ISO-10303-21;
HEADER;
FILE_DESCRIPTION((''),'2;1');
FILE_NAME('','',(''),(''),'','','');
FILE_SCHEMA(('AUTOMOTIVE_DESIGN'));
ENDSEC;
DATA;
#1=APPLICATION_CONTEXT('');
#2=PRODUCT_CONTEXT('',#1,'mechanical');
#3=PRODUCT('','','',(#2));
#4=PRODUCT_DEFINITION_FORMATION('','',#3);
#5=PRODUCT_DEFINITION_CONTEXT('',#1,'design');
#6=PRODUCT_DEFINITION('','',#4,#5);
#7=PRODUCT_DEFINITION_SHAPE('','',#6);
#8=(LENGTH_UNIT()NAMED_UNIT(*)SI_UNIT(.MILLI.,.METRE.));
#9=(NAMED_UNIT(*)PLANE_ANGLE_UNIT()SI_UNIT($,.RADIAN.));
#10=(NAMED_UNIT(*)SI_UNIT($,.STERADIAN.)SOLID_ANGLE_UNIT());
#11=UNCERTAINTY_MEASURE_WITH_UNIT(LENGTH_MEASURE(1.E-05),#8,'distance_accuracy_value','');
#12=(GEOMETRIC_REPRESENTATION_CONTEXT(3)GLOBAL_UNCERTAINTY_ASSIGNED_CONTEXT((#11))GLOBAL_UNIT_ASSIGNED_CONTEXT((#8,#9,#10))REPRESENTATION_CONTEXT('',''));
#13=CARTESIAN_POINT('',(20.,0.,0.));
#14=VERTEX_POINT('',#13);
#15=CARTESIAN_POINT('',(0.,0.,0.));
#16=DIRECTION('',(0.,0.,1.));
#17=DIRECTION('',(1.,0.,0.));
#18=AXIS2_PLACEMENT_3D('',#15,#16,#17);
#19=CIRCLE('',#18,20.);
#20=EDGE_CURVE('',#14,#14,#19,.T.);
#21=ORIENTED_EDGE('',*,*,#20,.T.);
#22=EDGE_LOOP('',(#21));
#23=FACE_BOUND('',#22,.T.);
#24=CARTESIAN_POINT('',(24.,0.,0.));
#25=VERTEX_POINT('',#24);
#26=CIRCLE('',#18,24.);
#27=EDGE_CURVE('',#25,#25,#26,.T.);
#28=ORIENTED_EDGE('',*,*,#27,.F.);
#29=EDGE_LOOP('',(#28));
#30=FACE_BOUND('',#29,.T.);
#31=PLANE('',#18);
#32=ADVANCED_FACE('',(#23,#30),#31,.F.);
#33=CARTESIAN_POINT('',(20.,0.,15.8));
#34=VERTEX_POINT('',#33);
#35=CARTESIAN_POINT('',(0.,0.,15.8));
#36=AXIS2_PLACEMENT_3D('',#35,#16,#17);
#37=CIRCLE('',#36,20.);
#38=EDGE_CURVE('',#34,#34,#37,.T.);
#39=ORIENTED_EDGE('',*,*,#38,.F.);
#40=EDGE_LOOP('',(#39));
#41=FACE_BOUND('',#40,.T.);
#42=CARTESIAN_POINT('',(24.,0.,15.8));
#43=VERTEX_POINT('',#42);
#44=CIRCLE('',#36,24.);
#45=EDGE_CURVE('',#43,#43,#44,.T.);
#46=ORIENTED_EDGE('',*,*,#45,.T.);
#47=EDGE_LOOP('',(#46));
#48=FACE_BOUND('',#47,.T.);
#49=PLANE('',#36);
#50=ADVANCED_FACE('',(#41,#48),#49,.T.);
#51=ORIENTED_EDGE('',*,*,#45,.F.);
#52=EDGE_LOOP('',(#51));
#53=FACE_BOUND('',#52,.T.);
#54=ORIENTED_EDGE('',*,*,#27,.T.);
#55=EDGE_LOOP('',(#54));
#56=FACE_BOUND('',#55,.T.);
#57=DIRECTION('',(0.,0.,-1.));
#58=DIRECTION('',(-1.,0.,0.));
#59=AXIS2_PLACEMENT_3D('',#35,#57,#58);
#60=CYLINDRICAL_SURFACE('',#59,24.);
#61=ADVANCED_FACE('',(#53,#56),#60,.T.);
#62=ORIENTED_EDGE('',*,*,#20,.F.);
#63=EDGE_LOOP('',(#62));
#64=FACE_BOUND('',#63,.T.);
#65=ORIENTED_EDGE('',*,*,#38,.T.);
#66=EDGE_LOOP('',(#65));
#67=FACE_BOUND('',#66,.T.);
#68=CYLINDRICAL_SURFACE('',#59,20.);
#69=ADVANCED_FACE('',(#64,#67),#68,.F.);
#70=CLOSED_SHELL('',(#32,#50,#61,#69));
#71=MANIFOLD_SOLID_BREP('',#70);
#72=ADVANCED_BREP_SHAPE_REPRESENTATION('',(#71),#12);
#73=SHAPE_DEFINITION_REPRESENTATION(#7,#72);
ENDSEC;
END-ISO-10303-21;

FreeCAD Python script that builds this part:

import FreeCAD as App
import Part
import Sketcher

doc = App.newDocument("Part")
body = doc.addObject("PartDesign::Body", "Body")

# Sketch on XY plane
sketch1 = body.newObject("Sketcher::SketchObject", "Sketch")
sketch1.AttachmentSupport = (doc.getObject("XY_Plane"), [""])
sketch1.MapMode = "FlatFace"
sketch1.addGeometry([
    Part.Circle(App.Vector(0, 0, 0), App.Vector(0, 0, 1), 24),
    Part.Circle(App.Vector(0, 0, 0), App.Vector(0, 0, 1), 20),
], False)
sketch1.addConstraint([
    Sketcher.Constraint("Coincident", 0, 3, -1, 1),
    Sketcher.Constraint("Coincident", 1, 3, -1, 1),
    Sketcher.Constraint("Diameter", 0, 48.0),
    Sketcher.Constraint("Diameter", 1, 40.0),
])
pad1 = body.newObject("PartDesign::Pad", "Pad")
pad1.Profile = sketch1
pad1.Length = 15.8

doc.recompute()
